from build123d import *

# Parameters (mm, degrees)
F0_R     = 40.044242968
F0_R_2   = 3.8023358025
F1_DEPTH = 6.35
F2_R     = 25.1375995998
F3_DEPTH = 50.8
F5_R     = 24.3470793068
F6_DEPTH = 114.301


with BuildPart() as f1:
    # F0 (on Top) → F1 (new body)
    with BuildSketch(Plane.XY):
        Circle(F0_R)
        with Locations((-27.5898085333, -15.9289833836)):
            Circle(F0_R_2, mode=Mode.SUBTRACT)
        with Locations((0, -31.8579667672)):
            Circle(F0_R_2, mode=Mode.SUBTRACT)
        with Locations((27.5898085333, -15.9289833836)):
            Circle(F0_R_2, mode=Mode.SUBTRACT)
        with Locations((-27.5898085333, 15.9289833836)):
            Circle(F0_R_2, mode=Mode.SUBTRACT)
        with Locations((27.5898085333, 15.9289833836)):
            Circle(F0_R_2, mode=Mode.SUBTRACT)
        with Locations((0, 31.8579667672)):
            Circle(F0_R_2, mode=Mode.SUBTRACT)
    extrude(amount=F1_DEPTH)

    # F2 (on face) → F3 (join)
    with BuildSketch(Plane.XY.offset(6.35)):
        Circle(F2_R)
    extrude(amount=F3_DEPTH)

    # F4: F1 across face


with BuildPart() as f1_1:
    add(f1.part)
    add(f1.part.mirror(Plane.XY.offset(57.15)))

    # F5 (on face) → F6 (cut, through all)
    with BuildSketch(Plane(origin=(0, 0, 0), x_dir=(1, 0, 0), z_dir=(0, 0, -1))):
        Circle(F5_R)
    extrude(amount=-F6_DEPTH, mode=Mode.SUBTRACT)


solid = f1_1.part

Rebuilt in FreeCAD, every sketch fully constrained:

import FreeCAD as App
import Part
import Sketcher

V = App.Vector

doc = App.newDocument("Part")
params = doc.addObject("Spreadsheet::Sheet", "Params")
for row, (alias, value) in enumerate([
    ("pad1_length", "0.25 in"),
    ("pad2_length", "2 in"),
], start=1):
    params.set(f"A{row}", alias)
    params.set(f"B{row}", "=" + value)
    params.setAlias(f"B{row}", alias)

body = doc.addObject("PartDesign::Body", "Body")

# Sketch on XY plane
sketch1 = doc.addObject("Sketcher::SketchObject", "Sketch")
body.addObject(sketch1)
sketch1.AttachmentSupport = (doc.XY_Plane, [""])
sketch1.MapMode = "FlatFace"
sketch1.addGeometry([
    Part.Circle(V(0, 0, 0), V(0, 0, 1), 40.044243),  # 0
    Part.Circle(V(-27.589809, -15.928983, 0), V(0, 0, 1), 3.802336),  # 1
    Part.Circle(V(0, -31.857967, 0), V(0, 0, 1), 3.802336),  # 2
    Part.Circle(V(27.589809, -15.928983, 0), V(0, 0, 1), 3.802336),  # 3
    Part.Circle(V(-27.589809, 15.928983, 0), V(0, 0, 1), 3.802336),  # 4
    Part.Circle(V(27.589809, 15.928983, 0), V(0, 0, 1), 3.802336),  # 5
    Part.Circle(V(0, 31.857967, 0), V(0, 0, 1), 3.802336),  # 6
], False)
sketch1.addConstraint([
    Sketcher.Constraint("Coincident", 0, 3, -1, 1),
    Sketcher.Constraint("Equal", 1, 2),
    Sketcher.Constraint("Equal", 2, 3),
    Sketcher.Constraint("Equal", 3, 4),
    Sketcher.Constraint("Equal", 4, 5),
    Sketcher.Constraint("Equal", 5, 6),
    Sketcher.Constraint("Symmetric", 3, 3, 4, 3, -1, 1),
    Sketcher.Constraint("Symmetric", 1, 3, 5, 3, -1, 1),
    Sketcher.Constraint("Symmetric", 2, 3, 6, 3, -1, 1),
    Sketcher.Constraint("Symmetric", 1, 3, 3, 3, -2),
    Sketcher.Constraint("PointOnObject", 2, 3, -2),
    Sketcher.Constraint("Diameter", 1, 7.604672),
    Sketcher.Constraint("Diameter", 0, 80.088486),
    Sketcher.Constraint("DistanceX", 1, 3, -1, 1, 27.589809),
    Sketcher.Constraint("DistanceY", 2, 3, 4, 3, 47.78695),
    Sketcher.Constraint("DistanceY", 1, 3, -1, 1, 15.928983),
])
pad1 = doc.addObject("PartDesign::Pad", "Pad")
body.addObject(pad1)
pad1.Profile = sketch1
pad1.setExpression("Length", "Params.pad1_length")

# Sketch on XY plane
sketch2 = doc.addObject("Sketcher::SketchObject", "Sketch001")
body.addObject(sketch2)
sketch2.AttachmentSupport = (doc.XY_Plane, [""])
sketch2.MapMode = "FlatFace"
sketch2.AttachmentOffset = App.Placement(V(0, 0, 0.25 * 25.4), App.Rotation())
sketch2.addGeometry(Part.Circle(V(0, 0, 0), V(0, 0, 1), 25.1376), False)
sketch2.addConstraint([
    Sketcher.Constraint("Coincident", 0, 3, -1, 1),
    Sketcher.Constraint("Diameter", 0, 50.275199),
])
pad2 = doc.addObject("PartDesign::Pad", "Pad001")
body.addObject(pad2)
pad2.Profile = sketch2
pad2.setExpression("Length", "Params.pad2_length")
body2 = doc.addObject("PartDesign::Body", "Body001")
doc.recompute()

body2.BaseFeature = body
doc.recompute()

mirroring = doc.addObject("Part::Mirroring", "Mirroring")
mirroring.Source = body
mirroring.Base = V(0, 0, 57.15)
mirroring.Normal = V(0, 0, 1)
body3 = doc.addObject("PartDesign::Body", "Body002")
body3.BaseFeature = mirroring
boolean = doc.addObject("PartDesign::Boolean", "Boolean")
body2.addObject(boolean)
boolean.Type = "Fuse"
boolean.addObjects([body3])
doc.recompute()

# Sketch on XY plane
sketch3 = doc.addObject("Sketcher::SketchObject", "Sketch002")
body2.addObject(sketch3)
sketch3.AttachmentSupport = (doc.getObject("XY_Plane001"), [""])
sketch3.MapMode = "FlatFace"
sketch3.addGeometry(Part.Circle(V(0, 0, 0), V(0, 0, 1), 24.347079), False)
sketch3.addConstraint([
    Sketcher.Constraint("Coincident", 0, 3, -1, 1),
    Sketcher.Constraint("Diameter", 0, 48.694159),
])
pocket1 = doc.addObject("PartDesign::Pocket", "Pocket")
body2.addObject(pocket1)
pocket1.Profile = sketch3
pocket1.Type = "ThroughAll"
pocket1.Reversed = True
mirroring.Visibility = False

doc.recompute()
